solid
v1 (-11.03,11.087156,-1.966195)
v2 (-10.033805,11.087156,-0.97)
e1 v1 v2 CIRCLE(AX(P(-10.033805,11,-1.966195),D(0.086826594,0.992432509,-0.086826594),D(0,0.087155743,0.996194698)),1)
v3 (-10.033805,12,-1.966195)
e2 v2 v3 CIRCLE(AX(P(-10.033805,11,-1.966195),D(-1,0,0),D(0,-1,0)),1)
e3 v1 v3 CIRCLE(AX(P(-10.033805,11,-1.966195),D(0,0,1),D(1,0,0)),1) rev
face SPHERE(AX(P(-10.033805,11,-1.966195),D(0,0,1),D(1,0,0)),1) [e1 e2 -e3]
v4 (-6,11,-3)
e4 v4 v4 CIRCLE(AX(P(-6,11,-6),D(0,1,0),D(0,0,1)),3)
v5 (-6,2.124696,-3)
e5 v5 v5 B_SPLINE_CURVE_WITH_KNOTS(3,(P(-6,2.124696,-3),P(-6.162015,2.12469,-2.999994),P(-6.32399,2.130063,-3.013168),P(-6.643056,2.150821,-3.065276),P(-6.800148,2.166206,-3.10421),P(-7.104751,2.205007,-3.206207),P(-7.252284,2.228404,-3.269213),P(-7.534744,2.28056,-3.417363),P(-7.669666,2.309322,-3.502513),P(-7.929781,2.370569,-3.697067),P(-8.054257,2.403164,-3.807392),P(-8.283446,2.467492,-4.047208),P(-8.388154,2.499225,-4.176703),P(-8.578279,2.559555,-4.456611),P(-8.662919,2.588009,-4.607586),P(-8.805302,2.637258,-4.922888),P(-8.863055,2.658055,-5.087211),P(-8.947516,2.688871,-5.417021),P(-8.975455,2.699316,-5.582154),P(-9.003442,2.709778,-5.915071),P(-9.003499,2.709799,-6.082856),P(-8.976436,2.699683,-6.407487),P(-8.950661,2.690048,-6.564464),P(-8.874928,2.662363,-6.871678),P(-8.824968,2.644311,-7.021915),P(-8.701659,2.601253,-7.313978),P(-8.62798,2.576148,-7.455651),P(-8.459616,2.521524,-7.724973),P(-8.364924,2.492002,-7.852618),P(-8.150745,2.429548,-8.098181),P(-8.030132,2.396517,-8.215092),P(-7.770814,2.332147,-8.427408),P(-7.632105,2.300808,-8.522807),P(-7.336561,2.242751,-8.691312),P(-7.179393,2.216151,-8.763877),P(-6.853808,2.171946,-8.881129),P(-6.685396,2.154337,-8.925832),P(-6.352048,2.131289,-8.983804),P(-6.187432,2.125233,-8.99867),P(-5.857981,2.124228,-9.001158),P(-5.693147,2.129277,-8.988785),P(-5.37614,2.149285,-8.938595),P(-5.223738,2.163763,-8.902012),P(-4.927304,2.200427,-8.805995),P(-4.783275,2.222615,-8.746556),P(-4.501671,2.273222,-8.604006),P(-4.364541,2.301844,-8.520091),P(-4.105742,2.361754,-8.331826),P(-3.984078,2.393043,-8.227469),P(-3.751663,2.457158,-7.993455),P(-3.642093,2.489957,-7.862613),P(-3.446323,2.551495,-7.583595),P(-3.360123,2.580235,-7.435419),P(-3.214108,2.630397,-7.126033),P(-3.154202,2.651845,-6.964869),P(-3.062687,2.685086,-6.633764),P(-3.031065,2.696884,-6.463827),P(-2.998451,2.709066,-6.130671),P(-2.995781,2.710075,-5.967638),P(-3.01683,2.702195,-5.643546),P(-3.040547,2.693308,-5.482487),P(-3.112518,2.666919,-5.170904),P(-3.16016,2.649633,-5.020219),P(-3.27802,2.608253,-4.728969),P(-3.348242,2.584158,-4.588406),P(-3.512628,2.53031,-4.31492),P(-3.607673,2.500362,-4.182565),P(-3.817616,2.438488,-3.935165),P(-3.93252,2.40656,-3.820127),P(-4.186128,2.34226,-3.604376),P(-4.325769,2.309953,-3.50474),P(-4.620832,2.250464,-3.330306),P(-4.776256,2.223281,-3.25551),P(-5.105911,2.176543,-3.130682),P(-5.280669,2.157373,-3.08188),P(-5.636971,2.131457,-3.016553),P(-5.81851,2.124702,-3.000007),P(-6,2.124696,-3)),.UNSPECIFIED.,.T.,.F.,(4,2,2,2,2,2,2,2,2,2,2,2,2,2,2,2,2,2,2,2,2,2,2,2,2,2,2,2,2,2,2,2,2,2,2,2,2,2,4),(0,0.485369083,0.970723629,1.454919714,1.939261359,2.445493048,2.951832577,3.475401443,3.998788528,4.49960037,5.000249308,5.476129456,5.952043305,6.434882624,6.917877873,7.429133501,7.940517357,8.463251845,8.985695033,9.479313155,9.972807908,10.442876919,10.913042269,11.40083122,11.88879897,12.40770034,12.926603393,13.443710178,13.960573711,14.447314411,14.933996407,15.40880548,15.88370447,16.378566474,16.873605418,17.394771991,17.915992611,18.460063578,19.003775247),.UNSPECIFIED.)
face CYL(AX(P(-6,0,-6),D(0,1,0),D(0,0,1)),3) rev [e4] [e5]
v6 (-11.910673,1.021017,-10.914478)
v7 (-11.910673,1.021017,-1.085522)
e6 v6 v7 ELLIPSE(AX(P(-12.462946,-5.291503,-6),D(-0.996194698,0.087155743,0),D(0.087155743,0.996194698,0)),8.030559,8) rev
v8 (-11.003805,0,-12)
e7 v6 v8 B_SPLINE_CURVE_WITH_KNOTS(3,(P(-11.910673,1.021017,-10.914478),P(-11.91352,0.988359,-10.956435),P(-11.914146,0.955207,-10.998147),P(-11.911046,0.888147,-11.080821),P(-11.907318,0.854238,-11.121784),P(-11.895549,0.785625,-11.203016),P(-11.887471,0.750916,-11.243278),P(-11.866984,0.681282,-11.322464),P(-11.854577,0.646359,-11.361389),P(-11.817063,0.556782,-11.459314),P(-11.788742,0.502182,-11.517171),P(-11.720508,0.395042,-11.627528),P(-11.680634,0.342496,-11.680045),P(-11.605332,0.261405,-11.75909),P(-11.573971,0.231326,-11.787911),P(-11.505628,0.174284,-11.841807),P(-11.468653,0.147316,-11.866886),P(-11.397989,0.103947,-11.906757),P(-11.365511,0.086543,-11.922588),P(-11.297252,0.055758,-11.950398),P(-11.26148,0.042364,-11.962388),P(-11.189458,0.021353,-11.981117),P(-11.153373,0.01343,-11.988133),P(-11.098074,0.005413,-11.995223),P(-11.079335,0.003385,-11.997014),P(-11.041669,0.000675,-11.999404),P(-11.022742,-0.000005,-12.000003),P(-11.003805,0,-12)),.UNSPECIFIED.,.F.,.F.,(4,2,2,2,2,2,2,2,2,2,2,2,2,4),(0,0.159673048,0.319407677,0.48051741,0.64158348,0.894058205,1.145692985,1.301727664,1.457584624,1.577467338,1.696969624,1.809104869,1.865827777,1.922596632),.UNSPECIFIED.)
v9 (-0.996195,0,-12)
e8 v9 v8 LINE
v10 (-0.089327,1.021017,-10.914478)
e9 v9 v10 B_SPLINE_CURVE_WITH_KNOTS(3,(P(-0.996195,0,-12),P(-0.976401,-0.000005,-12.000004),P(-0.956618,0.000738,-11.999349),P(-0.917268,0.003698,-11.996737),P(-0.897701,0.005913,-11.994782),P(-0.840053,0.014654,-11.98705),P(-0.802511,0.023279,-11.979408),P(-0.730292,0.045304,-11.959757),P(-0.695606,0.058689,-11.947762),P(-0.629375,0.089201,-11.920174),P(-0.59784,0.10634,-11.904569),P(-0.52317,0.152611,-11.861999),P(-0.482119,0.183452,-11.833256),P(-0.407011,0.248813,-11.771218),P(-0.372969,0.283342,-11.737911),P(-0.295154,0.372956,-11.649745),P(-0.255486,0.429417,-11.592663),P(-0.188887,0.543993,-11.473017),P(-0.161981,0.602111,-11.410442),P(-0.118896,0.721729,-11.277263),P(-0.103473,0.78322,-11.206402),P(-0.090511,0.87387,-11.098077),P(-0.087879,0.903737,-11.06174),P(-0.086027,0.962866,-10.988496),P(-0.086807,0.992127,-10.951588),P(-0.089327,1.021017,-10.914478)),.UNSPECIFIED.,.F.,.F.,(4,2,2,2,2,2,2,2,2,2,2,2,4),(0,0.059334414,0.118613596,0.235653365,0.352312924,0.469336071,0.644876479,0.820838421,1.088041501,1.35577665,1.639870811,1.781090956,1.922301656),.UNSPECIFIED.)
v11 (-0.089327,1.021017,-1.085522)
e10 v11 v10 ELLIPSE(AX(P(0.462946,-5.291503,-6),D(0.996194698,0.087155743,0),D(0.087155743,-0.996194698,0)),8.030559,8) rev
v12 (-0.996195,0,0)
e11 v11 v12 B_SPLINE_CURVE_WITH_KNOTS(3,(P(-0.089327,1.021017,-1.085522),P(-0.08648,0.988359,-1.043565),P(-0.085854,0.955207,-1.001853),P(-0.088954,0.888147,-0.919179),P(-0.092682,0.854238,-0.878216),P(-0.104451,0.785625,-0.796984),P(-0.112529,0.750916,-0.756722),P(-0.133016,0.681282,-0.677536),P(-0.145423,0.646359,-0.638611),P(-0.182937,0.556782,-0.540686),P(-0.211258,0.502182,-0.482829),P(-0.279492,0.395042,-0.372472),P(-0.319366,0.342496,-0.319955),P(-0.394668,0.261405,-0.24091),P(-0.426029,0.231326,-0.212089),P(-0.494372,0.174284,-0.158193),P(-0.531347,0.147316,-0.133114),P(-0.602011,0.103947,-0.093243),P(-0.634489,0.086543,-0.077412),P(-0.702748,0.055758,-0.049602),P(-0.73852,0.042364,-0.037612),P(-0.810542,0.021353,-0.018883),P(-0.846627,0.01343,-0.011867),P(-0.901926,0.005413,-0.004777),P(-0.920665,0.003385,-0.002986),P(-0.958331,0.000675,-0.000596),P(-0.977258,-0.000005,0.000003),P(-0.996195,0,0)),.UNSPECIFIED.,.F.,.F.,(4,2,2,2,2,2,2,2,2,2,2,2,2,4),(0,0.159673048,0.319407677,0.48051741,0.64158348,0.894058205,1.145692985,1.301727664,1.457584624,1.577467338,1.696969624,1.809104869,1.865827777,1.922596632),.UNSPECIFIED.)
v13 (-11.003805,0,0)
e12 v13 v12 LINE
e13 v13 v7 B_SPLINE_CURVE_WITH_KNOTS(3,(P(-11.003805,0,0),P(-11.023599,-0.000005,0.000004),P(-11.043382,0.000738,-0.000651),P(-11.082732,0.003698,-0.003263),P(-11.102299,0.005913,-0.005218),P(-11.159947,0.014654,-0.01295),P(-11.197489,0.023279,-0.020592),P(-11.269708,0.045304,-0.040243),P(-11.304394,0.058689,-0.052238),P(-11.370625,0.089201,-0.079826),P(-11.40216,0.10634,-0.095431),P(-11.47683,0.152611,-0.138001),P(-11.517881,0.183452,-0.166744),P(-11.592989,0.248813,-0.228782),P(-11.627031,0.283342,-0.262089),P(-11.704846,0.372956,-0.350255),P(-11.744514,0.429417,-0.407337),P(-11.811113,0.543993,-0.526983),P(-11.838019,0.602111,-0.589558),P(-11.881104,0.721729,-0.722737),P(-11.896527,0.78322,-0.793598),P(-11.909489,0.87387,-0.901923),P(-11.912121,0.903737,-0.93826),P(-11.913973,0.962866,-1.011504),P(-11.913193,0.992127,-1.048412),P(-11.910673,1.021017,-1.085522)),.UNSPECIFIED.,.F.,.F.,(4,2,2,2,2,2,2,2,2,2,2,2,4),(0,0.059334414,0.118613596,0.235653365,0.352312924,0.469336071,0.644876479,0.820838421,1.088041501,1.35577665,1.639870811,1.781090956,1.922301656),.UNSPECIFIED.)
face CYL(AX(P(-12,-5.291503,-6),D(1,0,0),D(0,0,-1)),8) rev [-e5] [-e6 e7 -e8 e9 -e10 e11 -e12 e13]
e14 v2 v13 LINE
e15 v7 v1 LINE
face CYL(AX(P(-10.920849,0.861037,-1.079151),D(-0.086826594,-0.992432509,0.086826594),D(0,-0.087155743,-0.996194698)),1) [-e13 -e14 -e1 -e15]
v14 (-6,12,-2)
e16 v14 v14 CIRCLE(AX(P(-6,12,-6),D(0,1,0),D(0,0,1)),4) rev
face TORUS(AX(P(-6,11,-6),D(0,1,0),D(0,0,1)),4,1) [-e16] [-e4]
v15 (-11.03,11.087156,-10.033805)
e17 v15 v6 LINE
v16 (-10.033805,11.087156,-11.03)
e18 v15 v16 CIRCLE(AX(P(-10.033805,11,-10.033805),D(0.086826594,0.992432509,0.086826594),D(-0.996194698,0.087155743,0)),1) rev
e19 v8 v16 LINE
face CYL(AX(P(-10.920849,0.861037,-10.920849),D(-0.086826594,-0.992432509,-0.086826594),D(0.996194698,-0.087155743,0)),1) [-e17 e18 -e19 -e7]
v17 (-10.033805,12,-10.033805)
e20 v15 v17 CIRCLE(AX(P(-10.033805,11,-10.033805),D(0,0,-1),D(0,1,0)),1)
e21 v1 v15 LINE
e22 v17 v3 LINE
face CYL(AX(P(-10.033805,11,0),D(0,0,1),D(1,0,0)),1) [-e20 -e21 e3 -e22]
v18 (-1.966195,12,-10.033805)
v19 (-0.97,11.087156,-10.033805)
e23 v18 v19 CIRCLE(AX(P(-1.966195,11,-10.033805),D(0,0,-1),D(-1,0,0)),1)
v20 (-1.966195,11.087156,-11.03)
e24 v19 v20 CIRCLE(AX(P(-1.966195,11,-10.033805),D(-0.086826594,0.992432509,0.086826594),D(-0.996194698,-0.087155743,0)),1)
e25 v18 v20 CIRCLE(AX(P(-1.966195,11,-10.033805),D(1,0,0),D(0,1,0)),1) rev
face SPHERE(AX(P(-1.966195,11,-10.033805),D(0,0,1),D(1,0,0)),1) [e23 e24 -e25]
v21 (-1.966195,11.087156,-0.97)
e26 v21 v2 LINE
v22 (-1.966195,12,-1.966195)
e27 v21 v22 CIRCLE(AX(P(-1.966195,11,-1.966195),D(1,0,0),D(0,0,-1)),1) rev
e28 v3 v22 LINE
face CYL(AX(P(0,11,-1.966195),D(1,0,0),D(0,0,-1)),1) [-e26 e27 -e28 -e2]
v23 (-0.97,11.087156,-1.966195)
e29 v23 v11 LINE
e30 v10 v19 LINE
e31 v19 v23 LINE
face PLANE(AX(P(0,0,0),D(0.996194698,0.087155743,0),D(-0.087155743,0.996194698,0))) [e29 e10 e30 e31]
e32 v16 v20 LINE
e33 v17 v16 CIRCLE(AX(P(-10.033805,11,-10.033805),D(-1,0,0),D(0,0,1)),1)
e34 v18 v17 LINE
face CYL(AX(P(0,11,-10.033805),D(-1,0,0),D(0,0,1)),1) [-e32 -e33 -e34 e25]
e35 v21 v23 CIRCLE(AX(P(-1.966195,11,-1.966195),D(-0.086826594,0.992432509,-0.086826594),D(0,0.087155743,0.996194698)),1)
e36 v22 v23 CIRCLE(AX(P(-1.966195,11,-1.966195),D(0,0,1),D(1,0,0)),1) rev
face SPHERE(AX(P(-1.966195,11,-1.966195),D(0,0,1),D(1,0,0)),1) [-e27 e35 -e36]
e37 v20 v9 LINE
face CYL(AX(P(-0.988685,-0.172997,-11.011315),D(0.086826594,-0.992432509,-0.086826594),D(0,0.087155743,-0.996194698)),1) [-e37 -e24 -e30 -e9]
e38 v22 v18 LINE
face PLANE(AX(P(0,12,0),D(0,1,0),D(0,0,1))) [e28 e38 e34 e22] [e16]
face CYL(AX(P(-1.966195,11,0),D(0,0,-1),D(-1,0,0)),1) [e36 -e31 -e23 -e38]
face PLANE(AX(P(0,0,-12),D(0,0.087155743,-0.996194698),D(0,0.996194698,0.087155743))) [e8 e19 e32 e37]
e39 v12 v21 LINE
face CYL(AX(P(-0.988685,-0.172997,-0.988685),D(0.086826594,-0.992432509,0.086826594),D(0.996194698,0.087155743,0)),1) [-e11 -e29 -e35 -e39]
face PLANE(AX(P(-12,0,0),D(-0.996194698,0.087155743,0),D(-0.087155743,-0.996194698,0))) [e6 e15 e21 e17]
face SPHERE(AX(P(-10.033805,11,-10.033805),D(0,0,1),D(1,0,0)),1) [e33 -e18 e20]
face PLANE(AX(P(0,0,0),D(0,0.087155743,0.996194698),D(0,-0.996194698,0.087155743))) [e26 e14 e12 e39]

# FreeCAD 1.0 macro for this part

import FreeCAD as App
import Part
import Sketcher

V = App.Vector
Q = App.Units.Quantity


def edges_at(feature, points):
    """Names of the edges that pass closest to the given points."""
    edges = feature.Shape.Edges
    near = lambda p: min(range(len(edges)), key=lambda i: edges[i].distToShape(Part.Vertex(*p))[0])
    return sorted({f"Edge{near(p) + 1}" for p in points})

doc = App.newDocument("Part")
body = doc.addObject("PartDesign::Body", "Body")

# Sketch on XZ plane
sketch1 = body.newObject("Sketcher::SketchObject", "Sketch")
sketch1.AttachmentSupport = (doc.getObject("XZ_Plane"), [""])
sketch1.MapMode = "FlatFace"
sketch1.addGeometry([
    Part.LineSegment(V(-12, -12, 0), V(-12, 0, 0)),
    Part.LineSegment(V(-12, 0, 0), V(0, 0, 0)),
    Part.LineSegment(V(0, 0, 0), V(0, -12, 0)),
    Part.LineSegment(V(0, -12, 0), V(-12, -12, 0)),
], False)
sketch1.addConstraint([
    Sketcher.Constraint("Coincident", 0, 2, 1, 1),
    Sketcher.Constraint("Coincident", 1, 2, 2, 1),
    Sketcher.Constraint("Coincident", 2, 2, 3, 1),
    Sketcher.Constraint("Coincident", 3, 2, 0, 1),
    Sketcher.Constraint("Vertical", 0),
    Sketcher.Constraint("Horizontal", 1),
    Sketcher.Constraint("Vertical", 2),
    Sketcher.Constraint("Horizontal", 3),
    Sketcher.Constraint("Coincident", 1, 2, -1, 1),
    Sketcher.Constraint("Equal", 3, 0),
    Sketcher.Constraint("DistanceX", 1, 1, 1, 2, Q("12 mm")),
])
pad1 = body.newObject("PartDesign::Pad", "Pad")
pad1.Profile = sketch1
pad1.Length = 12
pad1.Reversed = True
pad1.TaperAngle = -5

# Sketch on XZ plane
sketch2 = body.newObject("Sketcher::SketchObject", "Sketch001")
sketch2.AttachmentSupport = (doc.getObject("XZ_Plane"), [""])
sketch2.MapMode = "FlatFace"
sketch2.AttachmentOffset = App.Placement(V(0, 0, -12), App.Rotation())
sketch2.addGeometry(Part.Circle(V(-6, -6, 0), V(0, 0, 1), 3), False)
sketch2.addConstraint([
    Sketcher.Constraint("Diameter", 0, Q("6 mm")),
    Sketcher.Constraint("DistanceX", 0, 3, -1, 1, Q("6 mm")),
    Sketcher.Constraint("DistanceY", 0, 3, -1, 1, Q("6 mm")),
])
pocket1 = body.newObject("PartDesign::Pocket", "Pocket")
pocket1.Profile = sketch2
pocket1.Type = "ThroughAll"
pocket1.Reversed = True
doc.recompute()

fillet = body.newObject("PartDesign::Fillet", "Fillet")
fillet.Base = (pocket1, edges_at(pocket1, [
    (-10.95, 12, -6),
    (-6, 12, -1.05),
    (-6, 12, -9),
    (-1.05, 12, -6),
    (-6, 12, -10.95),
    (-0.525, 6, -0.525),
    (-11.475, 6, -0.525),
    (-11.475, 6, -11.475),
    (-0.525, 6, -11.475),
]))
fillet.Radius = 1

# Sketch on YZ plane
sketch3 = body.newObject("Sketcher::SketchObject", "Sketch002")
sketch3.AttachmentSupport = (doc.getObject("YZ_Plane"), [""])
sketch3.MapMode = "FlatFace"
sketch3.addGeometry(Part.Circle(V(-5, -6, 0), V(0, 0, 1), 8), False)
sketch3.addConstraint([
    Sketcher.Constraint("Diameter", 0, Q("16 mm")),
    Sketcher.Constraint("DistanceY", 0, 3, -1, 1, Q("6 mm")),
    Sketcher.Constraint("DistanceX", 0, 3, -1, 1, Q("5.291503 mm")),
])
pocket2 = body.newObject("PartDesign::Pocket", "Pocket001")
pocket2.Profile = sketch3
pocket2.Type = "ThroughAll"

doc.recompute()
